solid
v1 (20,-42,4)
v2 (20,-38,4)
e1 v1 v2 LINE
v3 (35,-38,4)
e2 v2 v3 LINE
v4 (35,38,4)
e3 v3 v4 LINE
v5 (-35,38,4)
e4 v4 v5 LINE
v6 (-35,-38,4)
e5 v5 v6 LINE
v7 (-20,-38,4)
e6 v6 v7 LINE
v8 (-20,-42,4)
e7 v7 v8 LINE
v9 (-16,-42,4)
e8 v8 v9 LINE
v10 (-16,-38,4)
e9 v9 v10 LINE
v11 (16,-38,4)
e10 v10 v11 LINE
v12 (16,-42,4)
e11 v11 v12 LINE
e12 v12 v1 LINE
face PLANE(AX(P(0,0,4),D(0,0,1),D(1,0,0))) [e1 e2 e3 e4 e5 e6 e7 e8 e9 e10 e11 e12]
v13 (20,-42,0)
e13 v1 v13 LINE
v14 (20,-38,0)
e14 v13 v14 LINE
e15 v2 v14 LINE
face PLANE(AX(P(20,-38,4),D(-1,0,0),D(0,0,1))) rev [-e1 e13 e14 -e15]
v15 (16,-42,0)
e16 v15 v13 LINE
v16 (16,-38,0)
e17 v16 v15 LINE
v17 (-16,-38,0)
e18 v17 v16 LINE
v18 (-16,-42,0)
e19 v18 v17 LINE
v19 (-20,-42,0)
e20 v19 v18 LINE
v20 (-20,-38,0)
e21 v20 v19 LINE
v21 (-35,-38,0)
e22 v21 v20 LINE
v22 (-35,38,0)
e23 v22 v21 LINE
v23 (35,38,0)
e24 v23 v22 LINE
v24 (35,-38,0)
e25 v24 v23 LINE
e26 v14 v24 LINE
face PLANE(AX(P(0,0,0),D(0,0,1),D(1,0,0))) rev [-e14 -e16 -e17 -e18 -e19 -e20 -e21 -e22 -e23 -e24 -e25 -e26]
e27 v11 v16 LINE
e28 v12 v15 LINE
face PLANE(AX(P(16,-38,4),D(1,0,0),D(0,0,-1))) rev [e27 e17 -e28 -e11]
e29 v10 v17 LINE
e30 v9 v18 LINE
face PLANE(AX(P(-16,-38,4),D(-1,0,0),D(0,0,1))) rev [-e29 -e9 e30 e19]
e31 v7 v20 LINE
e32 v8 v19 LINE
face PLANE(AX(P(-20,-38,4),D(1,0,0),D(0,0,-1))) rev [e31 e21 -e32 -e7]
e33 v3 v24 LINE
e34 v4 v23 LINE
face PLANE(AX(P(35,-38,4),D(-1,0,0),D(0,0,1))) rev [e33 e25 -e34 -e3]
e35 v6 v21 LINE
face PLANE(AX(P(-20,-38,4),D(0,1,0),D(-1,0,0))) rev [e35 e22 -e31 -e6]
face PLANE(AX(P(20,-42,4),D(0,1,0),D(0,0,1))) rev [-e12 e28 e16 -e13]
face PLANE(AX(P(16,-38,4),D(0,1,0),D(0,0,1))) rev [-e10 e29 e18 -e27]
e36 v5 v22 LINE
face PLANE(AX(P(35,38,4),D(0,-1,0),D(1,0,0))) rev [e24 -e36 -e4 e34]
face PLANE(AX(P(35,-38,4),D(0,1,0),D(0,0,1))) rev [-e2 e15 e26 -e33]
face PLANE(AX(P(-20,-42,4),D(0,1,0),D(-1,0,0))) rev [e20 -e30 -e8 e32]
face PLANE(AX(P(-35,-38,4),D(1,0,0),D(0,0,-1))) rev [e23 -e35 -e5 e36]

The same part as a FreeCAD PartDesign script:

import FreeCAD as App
import Part
import Sketcher

V = App.Vector
Q = App.Units.Quantity

doc = App.newDocument("Part")
body = doc.addObject("PartDesign::Body", "Body")

sketch1 = doc.addObject("Sketcher::SketchObject", "Sketch")
body.addObject(sketch1)
sketch1.AttachmentSupport = (doc.XY_Plane, [""])
sketch1.MapMode = "FlatFace"
sketch1.addGeometry([
    Part.LineSegment(V(-16, -38, 0), V(16, -38, 0)),
    Part.LineSegment(V(16, -38, 0), V(16, -42, 0)),
    Part.LineSegment(V(16, -42, 0), V(20, -42, 0)),
    Part.LineSegment(V(20, -42, 0), V(20, -38, 0)),
    Part.LineSegment(V(20, -38, 0), V(35, -38, 0)),
    Part.LineSegment(V(35, -38, 0), V(35, 38, 0)),
    Part.LineSegment(V(35, 38, 0), V(-35, 38, 0)),
    Part.LineSegment(V(-35, 38, 0), V(-35, -38, 0)),
    Part.LineSegment(V(-35, -38, 0), V(-20, -38, 0)),
    Part.LineSegment(V(-20, -38, 0), V(-20, -42, 0)),
    Part.LineSegment(V(-20, -42, 0), V(-16, -42, 0)),
    Part.LineSegment(V(-16, -42, 0), V(-16, -38, 0)),
], False)
sketch1.addConstraint([
    Sketcher.Constraint("Coincident", 0, 2, 1, 1),
    Sketcher.Constraint("Coincident", 1, 2, 2, 1),
    Sketcher.Constraint("Coincident", 2, 2, 3, 1),
    Sketcher.Constraint("Coincident", 3, 2, 4, 1),
    Sketcher.Constraint("Coincident", 4, 2, 5, 1),
    Sketcher.Constraint("Coincident", 5, 2, 6, 1),
    Sketcher.Constraint("Coincident", 6, 2, 7, 1),
    Sketcher.Constraint("Coincident", 7, 2, 8, 1),
    Sketcher.Constraint("Coincident", 8, 2, 9, 1),
    Sketcher.Constraint("Coincident", 9, 2, 10, 1),
    Sketcher.Constraint("Coincident", 10, 2, 11, 1),
    Sketcher.Constraint("Coincident", 11, 2, 0, 1),
    Sketcher.Constraint("Horizontal", 0),
    Sketcher.Constraint("Vertical", 1),
    Sketcher.Constraint("Horizontal", 2),
    Sketcher.Constraint("Vertical", 3),
    Sketcher.Constraint("Horizontal", 4),
    Sketcher.Constraint("Vertical", 5),
    Sketcher.Constraint("Horizontal", 6),
    Sketcher.Constraint("Vertical", 7),
    Sketcher.Constraint("Horizontal", 8),
    Sketcher.Constraint("Vertical", 9),
    Sketcher.Constraint("Horizontal", 10),
    Sketcher.Constraint("Vertical", 11),
    Sketcher.Constraint("Symmetric", 4, 2, 6, 2, -1, 1),
    Sketcher.Constraint("Symmetric", 3, 2, 8, 2, -2),
    Sketcher.Constraint("Symmetric", 1, 2, 10, 2, -2),
    Sketcher.Constraint("Horizontal", 0, 2, 3, 2),
    Sketcher.Constraint("Equal", 10, 1),
    Sketcher.Constraint("DistanceX", 0, 1, 0, 2, Q("32 mm")),
    Sketcher.Constraint("DistanceX", 2, 1, 2, 2, Q("4 mm")),
    Sketcher.Constraint("DistanceX", 4, 1, 4, 2, Q("15 mm")),
    Sketcher.Constraint("DistanceY", 5, 1, 5, 2, Q("76 mm")),
])
pad1 = doc.addObject("PartDesign::Pad", "Pad")
body.addObject(pad1)
pad1.Profile = sketch1
pad1.Length = 4

doc.recompute()
